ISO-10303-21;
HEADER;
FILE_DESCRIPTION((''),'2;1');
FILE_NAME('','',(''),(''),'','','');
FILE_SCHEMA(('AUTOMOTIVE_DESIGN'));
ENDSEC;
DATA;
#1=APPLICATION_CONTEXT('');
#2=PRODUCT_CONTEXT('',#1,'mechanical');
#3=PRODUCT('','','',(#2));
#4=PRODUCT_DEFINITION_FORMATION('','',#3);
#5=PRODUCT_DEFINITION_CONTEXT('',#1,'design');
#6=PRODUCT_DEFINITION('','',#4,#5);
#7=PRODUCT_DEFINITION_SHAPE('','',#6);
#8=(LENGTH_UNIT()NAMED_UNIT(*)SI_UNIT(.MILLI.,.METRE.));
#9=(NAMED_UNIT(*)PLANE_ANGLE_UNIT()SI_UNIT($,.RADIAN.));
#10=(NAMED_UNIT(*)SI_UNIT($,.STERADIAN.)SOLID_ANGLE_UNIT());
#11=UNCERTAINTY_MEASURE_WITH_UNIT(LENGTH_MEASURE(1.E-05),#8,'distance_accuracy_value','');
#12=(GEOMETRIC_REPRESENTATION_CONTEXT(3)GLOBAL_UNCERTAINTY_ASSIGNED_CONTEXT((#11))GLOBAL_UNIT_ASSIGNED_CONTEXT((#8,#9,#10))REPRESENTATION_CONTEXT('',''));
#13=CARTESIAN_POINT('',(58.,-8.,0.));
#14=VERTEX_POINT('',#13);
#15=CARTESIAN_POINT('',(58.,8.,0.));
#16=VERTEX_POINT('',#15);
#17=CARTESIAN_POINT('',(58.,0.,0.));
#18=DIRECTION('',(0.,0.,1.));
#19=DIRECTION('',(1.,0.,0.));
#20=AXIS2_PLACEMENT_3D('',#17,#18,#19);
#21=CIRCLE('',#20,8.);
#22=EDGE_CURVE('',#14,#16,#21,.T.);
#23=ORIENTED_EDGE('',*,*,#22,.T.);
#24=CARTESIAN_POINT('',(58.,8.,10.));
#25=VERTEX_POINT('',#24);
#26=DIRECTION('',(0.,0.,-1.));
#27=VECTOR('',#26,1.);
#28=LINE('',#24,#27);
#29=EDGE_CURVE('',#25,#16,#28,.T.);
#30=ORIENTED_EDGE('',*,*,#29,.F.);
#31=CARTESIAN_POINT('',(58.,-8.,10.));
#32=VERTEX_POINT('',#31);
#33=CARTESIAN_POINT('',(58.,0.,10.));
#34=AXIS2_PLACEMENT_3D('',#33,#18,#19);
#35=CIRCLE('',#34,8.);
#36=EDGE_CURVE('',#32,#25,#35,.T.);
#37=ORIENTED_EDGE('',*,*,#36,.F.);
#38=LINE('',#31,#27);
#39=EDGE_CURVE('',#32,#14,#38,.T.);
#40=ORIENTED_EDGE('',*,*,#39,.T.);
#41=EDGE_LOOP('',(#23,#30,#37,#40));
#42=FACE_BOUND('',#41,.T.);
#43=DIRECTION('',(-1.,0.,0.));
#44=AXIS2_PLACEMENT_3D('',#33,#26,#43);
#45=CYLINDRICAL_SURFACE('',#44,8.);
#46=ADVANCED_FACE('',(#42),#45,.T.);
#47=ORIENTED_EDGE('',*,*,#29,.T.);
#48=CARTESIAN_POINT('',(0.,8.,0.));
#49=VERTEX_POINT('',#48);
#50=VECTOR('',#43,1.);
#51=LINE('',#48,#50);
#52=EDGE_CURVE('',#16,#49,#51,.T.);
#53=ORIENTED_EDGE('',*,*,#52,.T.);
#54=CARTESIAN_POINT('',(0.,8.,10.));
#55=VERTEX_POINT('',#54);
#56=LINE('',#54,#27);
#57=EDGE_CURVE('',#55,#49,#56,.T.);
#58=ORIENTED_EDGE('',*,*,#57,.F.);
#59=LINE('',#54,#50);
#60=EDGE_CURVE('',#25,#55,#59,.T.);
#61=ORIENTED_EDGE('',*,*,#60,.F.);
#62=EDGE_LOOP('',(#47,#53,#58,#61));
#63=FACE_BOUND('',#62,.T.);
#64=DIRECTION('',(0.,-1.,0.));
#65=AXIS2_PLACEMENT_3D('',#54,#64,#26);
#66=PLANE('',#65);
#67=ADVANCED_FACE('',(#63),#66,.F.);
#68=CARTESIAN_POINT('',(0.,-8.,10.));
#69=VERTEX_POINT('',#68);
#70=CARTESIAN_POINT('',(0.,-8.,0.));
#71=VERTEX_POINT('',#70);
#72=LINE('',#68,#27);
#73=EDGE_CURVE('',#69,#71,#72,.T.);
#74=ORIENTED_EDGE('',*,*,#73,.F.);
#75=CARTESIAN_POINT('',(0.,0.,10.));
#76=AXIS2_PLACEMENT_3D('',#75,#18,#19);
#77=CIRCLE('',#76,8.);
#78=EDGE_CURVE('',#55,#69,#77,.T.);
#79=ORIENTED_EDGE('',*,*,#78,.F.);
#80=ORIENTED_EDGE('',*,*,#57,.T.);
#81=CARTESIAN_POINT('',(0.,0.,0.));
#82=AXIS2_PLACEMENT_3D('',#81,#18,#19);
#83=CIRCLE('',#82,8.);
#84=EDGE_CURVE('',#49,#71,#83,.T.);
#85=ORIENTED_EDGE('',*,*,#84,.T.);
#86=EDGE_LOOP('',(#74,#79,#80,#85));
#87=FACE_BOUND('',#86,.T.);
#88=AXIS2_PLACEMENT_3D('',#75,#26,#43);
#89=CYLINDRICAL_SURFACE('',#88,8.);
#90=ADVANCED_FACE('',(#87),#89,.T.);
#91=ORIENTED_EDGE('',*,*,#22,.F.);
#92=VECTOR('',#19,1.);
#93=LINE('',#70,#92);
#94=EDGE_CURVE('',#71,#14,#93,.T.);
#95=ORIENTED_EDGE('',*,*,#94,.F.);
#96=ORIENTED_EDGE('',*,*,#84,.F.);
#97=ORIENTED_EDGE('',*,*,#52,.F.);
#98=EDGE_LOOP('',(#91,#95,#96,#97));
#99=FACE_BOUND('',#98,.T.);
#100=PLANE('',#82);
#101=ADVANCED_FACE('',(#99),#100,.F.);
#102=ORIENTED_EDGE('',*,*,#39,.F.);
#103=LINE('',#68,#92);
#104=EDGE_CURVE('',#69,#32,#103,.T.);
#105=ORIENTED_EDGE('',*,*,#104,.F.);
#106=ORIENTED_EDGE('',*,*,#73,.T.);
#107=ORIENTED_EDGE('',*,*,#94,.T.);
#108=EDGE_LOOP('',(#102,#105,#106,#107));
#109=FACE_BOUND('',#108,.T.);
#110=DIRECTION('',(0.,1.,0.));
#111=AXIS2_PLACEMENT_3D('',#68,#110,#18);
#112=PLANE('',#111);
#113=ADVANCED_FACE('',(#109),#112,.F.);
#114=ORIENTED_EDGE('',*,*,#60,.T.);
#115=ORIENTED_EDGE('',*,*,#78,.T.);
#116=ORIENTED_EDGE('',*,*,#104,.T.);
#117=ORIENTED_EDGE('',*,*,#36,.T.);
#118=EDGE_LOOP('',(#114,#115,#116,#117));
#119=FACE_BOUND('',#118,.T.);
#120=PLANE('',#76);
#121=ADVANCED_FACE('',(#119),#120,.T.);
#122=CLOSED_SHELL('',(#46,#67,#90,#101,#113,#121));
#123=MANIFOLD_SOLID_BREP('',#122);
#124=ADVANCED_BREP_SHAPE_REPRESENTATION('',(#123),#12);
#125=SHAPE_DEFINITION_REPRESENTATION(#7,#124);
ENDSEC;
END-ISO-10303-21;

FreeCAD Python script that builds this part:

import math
import FreeCAD as App
import Part
import Sketcher
Q = App.Units.Quantity

doc = App.newDocument("Part")
params = doc.addObject("Spreadsheet::Sheet", "Params")
for row, (alias, value) in enumerate([
    ("sketch1_radius", "8 mm"),
    ("sketch1_width", "58 mm"),
    ("pad1_length", "10 mm"),
], start=1):
    params.set(f"A{row}", alias)
    params.set(f"B{row}", "=" + value)
    params.setAlias(f"B{row}", alias)

body = doc.addObject("PartDesign::Body", "Body")

sketch1 = body.newObject("Sketcher::SketchObject", "Sketch")
sketch1.AttachmentSupport = (doc.getObject("XY_Plane"), [""])
sketch1.MapMode = "FlatFace"
sketch1.addGeometry(Part.LineSegment(App.Vector(58, 8, 0), App.Vector(0, 8, 0)), False)
sketch1.addGeometry(Part.ArcOfCircle(Part.Circle(App.Vector(0, 0, 0), App.Vector(0, 0, 1), 8), math.radians(90), math.radians(270)), False)
sketch1.addGeometry(Part.LineSegment(App.Vector(0, -8, 0), App.Vector(58, -8, 0)), False)
sketch1.addGeometry(Part.ArcOfCircle(Part.Circle(App.Vector(58, 0, 0), App.Vector(0, 0, 1), 8), math.radians(-90), math.radians(90)), False)
sketch1.addConstraint(Sketcher.Constraint("Tangent", 0, 2, 1, 1))
sketch1.addConstraint(Sketcher.Constraint("Tangent", 1, 2, 2, 1))
sketch1.addConstraint(Sketcher.Constraint("Tangent", 2, 2, 3, 1))
sketch1.addConstraint(Sketcher.Constraint("Tangent", 3, 2, 0, 1))
sketch1.addConstraint(Sketcher.Constraint("Horizontal", 0))
sketch1.addConstraint(Sketcher.Constraint("Horizontal", 2))
sketch1.addConstraint(Sketcher.Constraint("Coincident", 1, 3, -1, 1))
sketch1.addConstraint(Sketcher.Constraint("Radius", 1, Q("8 mm")))
sketch1.addConstraint(Sketcher.Constraint("DistanceX", 0, 2, 0, 1, Q("58 mm")))
sketch1.setExpression("Constraints[7]", "Params.sketch1_radius")
sketch1.setExpression("Constraints[8]", "Params.sketch1_width")
pad1 = body.newObject("PartDesign::Pad", "Pad")
pad1.Profile = sketch1
pad1.setExpression("Length", "Params.pad1_length")

doc.recompute()
